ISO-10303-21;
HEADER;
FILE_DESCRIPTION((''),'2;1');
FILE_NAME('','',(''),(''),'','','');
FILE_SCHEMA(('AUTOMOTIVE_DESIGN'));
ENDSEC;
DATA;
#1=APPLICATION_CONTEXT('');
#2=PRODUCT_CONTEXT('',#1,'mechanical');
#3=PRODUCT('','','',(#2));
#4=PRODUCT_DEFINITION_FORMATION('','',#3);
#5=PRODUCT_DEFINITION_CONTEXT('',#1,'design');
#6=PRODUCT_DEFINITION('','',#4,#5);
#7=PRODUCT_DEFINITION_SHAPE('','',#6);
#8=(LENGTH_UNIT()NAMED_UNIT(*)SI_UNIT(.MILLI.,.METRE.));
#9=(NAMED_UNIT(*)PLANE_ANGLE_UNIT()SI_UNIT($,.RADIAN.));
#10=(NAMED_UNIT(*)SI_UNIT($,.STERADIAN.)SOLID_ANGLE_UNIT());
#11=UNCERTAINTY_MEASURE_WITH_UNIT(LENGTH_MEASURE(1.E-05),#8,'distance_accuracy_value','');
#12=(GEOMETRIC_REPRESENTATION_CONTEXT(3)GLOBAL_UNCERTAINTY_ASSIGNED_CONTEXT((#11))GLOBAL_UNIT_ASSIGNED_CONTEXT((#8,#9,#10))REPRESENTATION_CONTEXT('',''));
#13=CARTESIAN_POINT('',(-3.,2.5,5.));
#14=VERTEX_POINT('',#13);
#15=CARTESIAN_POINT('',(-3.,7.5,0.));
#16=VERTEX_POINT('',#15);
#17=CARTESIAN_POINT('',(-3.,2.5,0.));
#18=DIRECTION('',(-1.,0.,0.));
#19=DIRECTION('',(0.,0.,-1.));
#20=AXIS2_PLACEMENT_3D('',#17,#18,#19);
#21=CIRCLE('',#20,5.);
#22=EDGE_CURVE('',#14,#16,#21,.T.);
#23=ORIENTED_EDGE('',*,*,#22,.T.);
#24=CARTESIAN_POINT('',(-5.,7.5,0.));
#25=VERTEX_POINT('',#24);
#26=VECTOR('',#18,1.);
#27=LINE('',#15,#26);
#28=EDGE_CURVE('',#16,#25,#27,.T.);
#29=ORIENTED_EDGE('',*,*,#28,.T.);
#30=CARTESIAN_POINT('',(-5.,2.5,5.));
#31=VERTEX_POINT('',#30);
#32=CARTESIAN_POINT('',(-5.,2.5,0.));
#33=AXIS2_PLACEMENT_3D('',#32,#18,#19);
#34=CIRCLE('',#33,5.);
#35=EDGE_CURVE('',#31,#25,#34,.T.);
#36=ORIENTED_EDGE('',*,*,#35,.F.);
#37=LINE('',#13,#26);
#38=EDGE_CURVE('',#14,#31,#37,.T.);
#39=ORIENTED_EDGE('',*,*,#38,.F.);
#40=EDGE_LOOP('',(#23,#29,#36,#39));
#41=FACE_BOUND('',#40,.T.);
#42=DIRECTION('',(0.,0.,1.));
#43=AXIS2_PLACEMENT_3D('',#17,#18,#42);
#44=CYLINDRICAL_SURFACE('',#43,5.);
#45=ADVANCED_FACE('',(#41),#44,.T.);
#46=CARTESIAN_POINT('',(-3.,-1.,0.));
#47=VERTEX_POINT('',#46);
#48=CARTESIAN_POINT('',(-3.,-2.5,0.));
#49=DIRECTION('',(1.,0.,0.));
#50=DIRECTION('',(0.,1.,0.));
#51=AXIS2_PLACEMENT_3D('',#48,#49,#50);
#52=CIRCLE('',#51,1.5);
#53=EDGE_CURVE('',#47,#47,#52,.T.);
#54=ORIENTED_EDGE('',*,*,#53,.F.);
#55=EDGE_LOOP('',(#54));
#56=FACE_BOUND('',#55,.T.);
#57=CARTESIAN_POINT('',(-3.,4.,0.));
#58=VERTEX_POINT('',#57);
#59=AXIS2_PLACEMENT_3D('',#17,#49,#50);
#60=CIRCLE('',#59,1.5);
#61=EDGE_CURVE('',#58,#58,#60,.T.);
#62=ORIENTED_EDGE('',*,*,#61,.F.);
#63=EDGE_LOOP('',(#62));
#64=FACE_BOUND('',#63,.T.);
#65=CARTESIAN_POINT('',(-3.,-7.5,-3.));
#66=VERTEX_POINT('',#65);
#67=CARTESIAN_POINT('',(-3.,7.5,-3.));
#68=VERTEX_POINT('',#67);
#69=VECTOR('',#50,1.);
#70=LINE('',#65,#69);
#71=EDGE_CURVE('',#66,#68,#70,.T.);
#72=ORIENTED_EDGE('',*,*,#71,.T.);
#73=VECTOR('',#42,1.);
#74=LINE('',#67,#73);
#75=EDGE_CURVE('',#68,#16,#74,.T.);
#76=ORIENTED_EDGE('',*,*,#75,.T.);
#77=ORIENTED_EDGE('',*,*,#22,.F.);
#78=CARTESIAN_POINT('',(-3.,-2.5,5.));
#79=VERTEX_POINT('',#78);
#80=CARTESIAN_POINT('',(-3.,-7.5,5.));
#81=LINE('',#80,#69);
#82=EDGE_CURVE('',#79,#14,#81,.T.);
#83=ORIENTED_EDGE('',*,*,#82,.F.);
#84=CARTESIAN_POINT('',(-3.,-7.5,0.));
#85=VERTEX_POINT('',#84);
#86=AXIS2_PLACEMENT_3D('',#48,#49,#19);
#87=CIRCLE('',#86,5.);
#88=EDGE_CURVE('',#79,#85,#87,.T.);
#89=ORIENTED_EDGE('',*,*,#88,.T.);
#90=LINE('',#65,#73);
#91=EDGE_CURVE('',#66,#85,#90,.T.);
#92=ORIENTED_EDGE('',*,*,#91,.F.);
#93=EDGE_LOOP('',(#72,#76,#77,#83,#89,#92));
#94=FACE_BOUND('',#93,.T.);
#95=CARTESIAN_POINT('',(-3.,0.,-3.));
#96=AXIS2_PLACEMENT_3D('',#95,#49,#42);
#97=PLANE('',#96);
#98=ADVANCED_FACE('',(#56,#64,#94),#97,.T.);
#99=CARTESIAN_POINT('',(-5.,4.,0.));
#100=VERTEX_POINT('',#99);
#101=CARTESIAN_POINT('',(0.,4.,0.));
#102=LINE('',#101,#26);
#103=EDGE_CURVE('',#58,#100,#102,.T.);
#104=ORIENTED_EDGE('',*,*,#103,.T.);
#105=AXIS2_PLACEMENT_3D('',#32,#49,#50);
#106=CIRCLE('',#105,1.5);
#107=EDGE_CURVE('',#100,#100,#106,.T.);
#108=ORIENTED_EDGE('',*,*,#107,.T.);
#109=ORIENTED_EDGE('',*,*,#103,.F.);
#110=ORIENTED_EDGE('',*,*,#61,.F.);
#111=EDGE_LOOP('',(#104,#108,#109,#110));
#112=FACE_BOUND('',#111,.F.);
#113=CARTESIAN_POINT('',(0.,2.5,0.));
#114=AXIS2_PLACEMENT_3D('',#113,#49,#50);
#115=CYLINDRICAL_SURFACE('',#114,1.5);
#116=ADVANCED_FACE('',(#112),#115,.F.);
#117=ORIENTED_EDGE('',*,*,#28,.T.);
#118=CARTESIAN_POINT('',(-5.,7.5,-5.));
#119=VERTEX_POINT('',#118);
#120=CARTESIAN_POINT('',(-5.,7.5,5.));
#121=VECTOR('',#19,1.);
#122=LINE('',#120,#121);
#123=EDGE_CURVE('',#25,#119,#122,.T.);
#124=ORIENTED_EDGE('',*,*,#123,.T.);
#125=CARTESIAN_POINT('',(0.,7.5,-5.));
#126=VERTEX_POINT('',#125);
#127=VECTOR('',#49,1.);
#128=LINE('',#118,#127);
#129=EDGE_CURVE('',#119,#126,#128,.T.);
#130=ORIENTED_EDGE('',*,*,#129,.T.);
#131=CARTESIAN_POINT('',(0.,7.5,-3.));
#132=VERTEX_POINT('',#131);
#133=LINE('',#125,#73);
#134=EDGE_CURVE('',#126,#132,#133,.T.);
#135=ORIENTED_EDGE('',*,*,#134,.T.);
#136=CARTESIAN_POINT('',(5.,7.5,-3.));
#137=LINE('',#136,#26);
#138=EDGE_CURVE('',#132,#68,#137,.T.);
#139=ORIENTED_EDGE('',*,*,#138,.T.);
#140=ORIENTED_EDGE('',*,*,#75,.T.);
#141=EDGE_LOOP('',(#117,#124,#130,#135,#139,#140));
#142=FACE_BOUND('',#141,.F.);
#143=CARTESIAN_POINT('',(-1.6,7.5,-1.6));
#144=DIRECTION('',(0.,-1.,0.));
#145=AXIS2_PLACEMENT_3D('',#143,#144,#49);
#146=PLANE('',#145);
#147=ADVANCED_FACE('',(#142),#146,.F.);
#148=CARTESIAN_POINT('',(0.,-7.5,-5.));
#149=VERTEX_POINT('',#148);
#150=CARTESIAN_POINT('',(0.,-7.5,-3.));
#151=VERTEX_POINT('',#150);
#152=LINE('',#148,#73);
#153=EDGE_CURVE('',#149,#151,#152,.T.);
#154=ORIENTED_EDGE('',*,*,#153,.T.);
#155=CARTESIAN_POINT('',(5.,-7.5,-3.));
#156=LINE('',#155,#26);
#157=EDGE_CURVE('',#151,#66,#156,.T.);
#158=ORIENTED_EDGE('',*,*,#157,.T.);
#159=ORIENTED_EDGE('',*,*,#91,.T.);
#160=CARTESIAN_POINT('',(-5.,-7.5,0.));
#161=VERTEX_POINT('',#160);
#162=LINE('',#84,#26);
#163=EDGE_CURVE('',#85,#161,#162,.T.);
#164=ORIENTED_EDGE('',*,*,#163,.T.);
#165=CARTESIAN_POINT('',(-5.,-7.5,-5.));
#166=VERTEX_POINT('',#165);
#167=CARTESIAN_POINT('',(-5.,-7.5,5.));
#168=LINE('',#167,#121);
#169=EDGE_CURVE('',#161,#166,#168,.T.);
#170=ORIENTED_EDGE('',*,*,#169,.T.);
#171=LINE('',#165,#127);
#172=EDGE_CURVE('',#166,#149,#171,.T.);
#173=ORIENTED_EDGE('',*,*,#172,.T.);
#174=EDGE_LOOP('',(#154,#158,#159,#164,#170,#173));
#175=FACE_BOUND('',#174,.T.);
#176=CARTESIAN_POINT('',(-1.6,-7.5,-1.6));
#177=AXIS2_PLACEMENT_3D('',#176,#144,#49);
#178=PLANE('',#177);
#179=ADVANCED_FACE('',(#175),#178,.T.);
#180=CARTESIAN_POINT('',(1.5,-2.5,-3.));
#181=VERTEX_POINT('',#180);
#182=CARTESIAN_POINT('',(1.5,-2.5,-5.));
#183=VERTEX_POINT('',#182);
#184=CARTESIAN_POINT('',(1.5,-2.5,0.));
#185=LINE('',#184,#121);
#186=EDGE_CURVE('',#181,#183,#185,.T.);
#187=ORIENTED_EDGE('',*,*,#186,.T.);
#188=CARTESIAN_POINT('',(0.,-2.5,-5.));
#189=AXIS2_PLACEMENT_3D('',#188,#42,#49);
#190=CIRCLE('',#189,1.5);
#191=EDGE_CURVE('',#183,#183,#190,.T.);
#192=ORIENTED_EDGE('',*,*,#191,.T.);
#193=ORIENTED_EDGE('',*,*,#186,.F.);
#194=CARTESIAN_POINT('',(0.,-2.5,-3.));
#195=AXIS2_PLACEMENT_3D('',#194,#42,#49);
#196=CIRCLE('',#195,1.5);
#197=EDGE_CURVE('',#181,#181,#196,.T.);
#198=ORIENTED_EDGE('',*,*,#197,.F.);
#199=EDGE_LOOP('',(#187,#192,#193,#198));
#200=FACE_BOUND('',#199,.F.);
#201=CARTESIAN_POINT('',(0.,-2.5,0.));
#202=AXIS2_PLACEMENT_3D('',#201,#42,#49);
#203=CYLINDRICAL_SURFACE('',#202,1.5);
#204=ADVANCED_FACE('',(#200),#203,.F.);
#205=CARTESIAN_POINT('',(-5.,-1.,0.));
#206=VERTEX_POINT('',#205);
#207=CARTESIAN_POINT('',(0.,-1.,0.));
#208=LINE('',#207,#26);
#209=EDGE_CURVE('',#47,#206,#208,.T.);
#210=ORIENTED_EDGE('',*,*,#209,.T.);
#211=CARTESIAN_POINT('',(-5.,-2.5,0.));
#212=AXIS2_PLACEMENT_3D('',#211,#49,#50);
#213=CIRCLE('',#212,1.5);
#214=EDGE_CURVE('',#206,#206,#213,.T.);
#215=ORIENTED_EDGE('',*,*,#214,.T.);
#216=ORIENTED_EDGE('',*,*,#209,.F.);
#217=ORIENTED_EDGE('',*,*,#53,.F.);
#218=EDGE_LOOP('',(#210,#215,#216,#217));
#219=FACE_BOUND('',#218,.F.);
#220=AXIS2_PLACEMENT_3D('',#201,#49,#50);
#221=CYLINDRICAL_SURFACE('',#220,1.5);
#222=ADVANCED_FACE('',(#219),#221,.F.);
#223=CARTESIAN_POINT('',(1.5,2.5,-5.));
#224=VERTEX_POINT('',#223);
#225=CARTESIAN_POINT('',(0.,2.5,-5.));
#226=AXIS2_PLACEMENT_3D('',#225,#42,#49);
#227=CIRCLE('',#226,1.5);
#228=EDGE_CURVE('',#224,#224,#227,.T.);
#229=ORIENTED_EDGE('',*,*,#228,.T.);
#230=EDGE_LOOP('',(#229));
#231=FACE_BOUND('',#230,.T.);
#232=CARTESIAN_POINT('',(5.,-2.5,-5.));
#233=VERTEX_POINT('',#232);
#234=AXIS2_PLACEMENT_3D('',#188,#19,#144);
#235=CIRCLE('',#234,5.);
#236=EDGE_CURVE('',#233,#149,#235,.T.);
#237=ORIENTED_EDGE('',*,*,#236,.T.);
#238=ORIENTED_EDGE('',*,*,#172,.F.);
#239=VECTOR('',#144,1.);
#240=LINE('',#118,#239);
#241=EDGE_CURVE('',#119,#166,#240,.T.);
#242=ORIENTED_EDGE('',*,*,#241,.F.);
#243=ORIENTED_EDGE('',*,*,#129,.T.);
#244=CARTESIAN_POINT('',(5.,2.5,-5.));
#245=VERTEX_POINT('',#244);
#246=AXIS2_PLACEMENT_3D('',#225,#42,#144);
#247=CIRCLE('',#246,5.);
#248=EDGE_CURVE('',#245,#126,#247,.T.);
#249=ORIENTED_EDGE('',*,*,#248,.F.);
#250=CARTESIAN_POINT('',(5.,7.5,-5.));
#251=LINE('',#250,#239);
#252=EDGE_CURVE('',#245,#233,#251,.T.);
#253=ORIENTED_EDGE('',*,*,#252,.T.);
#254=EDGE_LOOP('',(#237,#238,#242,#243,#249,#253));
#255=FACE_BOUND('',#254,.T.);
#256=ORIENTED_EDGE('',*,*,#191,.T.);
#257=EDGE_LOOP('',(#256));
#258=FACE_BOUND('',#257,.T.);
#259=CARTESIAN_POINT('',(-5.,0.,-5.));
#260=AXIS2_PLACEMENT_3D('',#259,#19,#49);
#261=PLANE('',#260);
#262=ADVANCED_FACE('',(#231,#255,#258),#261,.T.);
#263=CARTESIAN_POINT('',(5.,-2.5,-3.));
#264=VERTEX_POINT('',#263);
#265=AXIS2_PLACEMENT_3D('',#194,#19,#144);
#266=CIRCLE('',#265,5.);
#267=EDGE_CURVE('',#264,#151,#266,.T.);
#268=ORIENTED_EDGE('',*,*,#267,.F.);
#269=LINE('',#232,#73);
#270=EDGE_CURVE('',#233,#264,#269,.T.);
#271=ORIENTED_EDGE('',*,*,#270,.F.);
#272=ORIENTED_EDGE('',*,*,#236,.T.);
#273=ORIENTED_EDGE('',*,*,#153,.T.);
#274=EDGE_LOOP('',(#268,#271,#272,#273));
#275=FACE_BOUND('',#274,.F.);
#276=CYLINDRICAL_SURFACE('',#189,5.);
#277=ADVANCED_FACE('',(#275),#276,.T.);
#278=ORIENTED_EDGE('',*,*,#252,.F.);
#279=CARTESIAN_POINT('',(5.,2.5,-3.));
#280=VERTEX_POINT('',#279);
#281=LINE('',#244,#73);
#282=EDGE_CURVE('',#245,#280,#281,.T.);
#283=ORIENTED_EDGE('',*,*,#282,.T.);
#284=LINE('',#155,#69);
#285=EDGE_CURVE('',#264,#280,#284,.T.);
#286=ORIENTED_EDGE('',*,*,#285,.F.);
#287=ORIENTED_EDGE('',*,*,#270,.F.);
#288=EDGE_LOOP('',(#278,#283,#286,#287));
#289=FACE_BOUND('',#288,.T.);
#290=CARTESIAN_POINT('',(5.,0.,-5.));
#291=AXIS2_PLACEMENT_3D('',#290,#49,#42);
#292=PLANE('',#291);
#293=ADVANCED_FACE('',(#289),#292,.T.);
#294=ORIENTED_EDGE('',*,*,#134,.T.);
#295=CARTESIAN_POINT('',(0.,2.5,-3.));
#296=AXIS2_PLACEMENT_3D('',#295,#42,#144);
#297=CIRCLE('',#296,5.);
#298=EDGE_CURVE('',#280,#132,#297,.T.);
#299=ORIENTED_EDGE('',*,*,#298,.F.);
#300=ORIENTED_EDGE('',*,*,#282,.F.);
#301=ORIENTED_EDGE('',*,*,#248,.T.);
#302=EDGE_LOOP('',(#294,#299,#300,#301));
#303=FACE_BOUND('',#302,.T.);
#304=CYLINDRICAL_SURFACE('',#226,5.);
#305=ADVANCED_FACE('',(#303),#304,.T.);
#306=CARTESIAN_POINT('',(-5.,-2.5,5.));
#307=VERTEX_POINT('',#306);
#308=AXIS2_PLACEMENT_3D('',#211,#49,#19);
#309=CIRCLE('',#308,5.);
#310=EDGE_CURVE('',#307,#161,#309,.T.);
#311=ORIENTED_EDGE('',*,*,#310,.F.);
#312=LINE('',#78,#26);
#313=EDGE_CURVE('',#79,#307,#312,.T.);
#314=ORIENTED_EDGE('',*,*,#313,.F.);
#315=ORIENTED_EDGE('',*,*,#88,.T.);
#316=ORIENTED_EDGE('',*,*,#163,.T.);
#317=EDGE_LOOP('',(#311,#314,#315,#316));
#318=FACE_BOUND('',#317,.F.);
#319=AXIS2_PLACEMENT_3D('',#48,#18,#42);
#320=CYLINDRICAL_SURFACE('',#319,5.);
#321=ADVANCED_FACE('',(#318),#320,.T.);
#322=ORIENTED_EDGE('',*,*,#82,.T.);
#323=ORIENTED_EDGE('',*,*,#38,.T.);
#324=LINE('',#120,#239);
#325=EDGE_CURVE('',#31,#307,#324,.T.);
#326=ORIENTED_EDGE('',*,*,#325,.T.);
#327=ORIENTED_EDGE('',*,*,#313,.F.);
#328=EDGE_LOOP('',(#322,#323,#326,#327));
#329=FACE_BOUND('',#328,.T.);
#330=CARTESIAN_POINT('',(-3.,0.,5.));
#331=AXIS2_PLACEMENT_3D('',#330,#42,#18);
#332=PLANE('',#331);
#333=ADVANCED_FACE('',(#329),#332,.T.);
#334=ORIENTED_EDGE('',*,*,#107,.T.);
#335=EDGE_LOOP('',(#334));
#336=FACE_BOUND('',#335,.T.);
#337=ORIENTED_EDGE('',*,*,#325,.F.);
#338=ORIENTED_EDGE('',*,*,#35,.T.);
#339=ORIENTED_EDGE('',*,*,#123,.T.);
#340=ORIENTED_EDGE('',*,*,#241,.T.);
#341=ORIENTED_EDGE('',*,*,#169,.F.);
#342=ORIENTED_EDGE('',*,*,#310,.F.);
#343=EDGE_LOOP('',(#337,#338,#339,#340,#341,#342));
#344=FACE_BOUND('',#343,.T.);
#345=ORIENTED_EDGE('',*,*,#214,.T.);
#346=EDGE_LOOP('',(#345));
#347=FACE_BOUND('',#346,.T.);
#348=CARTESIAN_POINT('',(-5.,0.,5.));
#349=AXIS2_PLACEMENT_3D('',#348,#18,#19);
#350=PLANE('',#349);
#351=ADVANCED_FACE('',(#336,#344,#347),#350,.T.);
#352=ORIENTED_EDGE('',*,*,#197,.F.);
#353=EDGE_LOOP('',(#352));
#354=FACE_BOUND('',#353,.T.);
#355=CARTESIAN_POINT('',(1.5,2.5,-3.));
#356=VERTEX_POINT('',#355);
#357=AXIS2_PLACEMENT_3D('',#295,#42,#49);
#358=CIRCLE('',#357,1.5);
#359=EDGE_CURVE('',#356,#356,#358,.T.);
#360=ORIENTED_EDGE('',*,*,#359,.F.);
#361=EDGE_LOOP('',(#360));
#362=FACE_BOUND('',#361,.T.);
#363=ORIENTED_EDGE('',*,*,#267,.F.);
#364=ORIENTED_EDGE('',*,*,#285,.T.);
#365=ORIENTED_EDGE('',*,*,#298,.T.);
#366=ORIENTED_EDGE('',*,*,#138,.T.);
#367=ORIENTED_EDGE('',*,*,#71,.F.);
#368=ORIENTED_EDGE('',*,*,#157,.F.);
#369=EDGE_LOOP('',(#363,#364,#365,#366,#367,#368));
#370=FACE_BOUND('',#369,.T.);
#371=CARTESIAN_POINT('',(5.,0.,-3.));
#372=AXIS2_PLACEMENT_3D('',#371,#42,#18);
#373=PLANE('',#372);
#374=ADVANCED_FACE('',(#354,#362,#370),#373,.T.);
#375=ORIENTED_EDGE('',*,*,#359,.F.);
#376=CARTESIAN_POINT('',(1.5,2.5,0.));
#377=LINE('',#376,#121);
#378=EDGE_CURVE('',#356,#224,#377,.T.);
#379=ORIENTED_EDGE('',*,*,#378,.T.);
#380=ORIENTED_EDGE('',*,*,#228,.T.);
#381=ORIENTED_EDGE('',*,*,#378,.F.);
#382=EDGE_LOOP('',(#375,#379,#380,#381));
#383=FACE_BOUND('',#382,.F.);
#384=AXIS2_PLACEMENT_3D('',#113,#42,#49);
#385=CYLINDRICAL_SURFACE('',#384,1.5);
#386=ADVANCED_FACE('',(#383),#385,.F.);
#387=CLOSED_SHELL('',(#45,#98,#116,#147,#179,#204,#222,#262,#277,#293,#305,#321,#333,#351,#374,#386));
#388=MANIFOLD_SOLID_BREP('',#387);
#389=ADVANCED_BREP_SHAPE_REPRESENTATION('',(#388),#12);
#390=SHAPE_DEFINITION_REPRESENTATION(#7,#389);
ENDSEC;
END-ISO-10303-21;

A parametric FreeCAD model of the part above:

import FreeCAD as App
import Part
import Sketcher

V = App.Vector
Q = App.Units.Quantity


def edges_at(feature, points):
    """Names of the edges that pass closest to the given points."""
    edges = feature.Shape.Edges
    near = lambda p: min(range(len(edges)), key=lambda i: edges[i].distToShape(Part.Vertex(*p))[0])
    return sorted({f"Edge{near(p) + 1}" for p in points})


def add_polygon(sketch, points):
    """Adds a closed chain of lines whose ends are joined by coincident constraints."""
    first, n = sketch.GeometryCount, len(points)
    for a, b in zip(points, points[1:] + points[:1]):
        sketch.addGeometry(Part.LineSegment(App.Vector(*a, 0), App.Vector(*b, 0)), False)
    for i in range(n):
        sketch.addConstraint(Sketcher.Constraint("Coincident", first + i, 2, first + (i + 1) % n, 1))

doc = App.newDocument("Part")
body = doc.addObject("PartDesign::Body", "Body")

# Sketch on XZ plane
sketch1 = doc.addObject("Sketcher::SketchObject", "Sketch")
body.addObject(sketch1)
sketch1.AttachmentSupport = (doc.XZ_Plane, [""])
sketch1.MapMode = "FlatFace"
add_polygon(sketch1, [(-3, 5), (-5, 5), (-5, -5), (5, -5), (5, -3), (-3, -3)])  # lines 0-5
sketch1.addConstraint([
    Sketcher.Constraint("Horizontal", 0),
    Sketcher.Constraint("Vertical", 1),
    Sketcher.Constraint("Horizontal", 2),
    Sketcher.Constraint("Vertical", 3),
    Sketcher.Constraint("Horizontal", 4),
    Sketcher.Constraint("Vertical", 5),
    Sketcher.Constraint("Symmetric", 0, 2, 2, 2, -1, 1),
    Sketcher.Constraint("Equal", 2, 1),
    Sketcher.Constraint("Equal", 0, 3),
    Sketcher.Constraint("DistanceX", 0, 2, 0, 1, Q("2 mm")),
    Sketcher.Constraint("DistanceX", 2, 1, 2, 2, Q("10 mm")),
])
pad1 = doc.addObject("PartDesign::Pad", "Pad")
body.addObject(pad1)
pad1.Profile = sketch1
pad1.Length = 15
pad1.Midplane = True
doc.recompute()

fillet = doc.addObject("PartDesign::Fillet", "Fillet")
body.addObject(fillet)
fillet.Base = (pad1, edges_at(pad1, [
    (-4, -7.5, 5),
    (-4, 7.5, 5),
    (5, -7.5, -4),
    (5, 7.5, -4),
]))
fillet.Radius = 5

# Sketch on YZ plane
sketch2 = doc.addObject("Sketcher::SketchObject", "Sketch001")
body.addObject(sketch2)
sketch2.AttachmentSupport = (doc.YZ_Plane, [""])
sketch2.MapMode = "FlatFace"
sketch2.addGeometry([
    Part.Circle(V(-2.5, 0, 0), V(0, 0, 1), 1.5),
    Part.Circle(V(2.5, 0, 0), V(0, 0, 1), 1.5),
], False)
sketch2.addConstraint([
    Sketcher.Constraint("Equal", 0, 1),
    Sketcher.Constraint("Symmetric", 0, 3, 1, 3, -1, 1),
    Sketcher.Constraint("PointOnObject", 0, 3, -1),
    Sketcher.Constraint("Diameter", 0, Q("3 mm")),
    Sketcher.Constraint("DistanceX", 0, 3, 1, 3, Q("5 mm")),
])
pocket1 = doc.addObject("PartDesign::Pocket", "Pocket")
body.addObject(pocket1)
pocket1.Profile = sketch2
pocket1.Length = 5

# Sketch on XY plane
sketch3 = doc.addObject("Sketcher::SketchObject", "Sketch002")
body.addObject(sketch3)
sketch3.AttachmentSupport = (doc.XY_Plane, [""])
sketch3.MapMode = "FlatFace"
sketch3.addGeometry([
    Part.Circle(V(0, 2.5, 0), V(0, 0, 1), 1.5),
    Part.Circle(V(0, -2.5, 0), V(0, 0, 1), 1.5),
], False)
sketch3.addConstraint([
    Sketcher.Constraint("Equal", 0, 1),
    Sketcher.Constraint("Symmetric", 0, 3, 1, 3, -1, 1),
    Sketcher.Constraint("PointOnObject", 0, 3, -2),
    Sketcher.Constraint("Diameter", 0, Q("3 mm")),
    Sketcher.Constraint("DistanceY", 1, 3, 0, 3, Q("5 mm")),
])
pocket2 = doc.addObject("PartDesign::Pocket", "Pocket001")
body.addObject(pocket2)
pocket2.Profile = sketch3
pocket2.Length = 5

doc.recompute()
